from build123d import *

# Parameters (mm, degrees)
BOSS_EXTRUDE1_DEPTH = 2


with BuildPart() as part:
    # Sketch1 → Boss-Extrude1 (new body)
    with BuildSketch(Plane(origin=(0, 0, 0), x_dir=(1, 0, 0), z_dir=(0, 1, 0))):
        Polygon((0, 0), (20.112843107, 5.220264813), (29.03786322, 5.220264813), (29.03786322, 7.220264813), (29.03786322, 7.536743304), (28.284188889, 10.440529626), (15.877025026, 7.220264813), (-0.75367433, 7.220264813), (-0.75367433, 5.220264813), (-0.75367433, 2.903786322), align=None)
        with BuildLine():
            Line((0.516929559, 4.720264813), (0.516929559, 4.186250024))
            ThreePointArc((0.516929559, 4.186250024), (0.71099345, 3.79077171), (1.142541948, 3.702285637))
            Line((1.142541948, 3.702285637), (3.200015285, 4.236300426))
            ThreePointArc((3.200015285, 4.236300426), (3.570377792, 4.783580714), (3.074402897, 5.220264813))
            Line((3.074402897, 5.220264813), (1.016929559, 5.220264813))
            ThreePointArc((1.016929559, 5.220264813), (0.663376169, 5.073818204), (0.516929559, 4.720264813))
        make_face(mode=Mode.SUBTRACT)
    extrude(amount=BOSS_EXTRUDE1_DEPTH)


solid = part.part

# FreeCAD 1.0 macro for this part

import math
import FreeCAD as App
import Part
import Sketcher

V = App.Vector
Q = App.Units.Quantity


def add_polygon(sketch, points):
    """Adds a closed chain of lines whose ends are joined by coincident constraints."""
    first, n = sketch.GeometryCount, len(points)
    for a, b in zip(points, points[1:] + points[:1]):
        sketch.addGeometry(Part.LineSegment(App.Vector(*a, 0), App.Vector(*b, 0)), False)
    for i in range(n):
        sketch.addConstraint(Sketcher.Constraint("Coincident", first + i, 2, first + (i + 1) % n, 1))

doc = App.newDocument("Part")
body = doc.addObject("PartDesign::Body", "Body")

sketch1 = doc.addObject("Sketcher::SketchObject", "Sketch")
body.addObject(sketch1)
sketch1.AttachmentSupport = (doc.XZ_Plane, [""])
sketch1.MapMode = "FlatFace"
add_polygon(sketch1, [(0, 0), (20.112843, -5.220265), (29.037863, -5.220265), (29.037863, -7.536743), (28.284189, -10.44053), (15.877025, -7.220265), (-0.753674, -7.220265), (-0.753674, -2.903786)])
sketch1.addGeometry(Part.LineSegment(V(0.51693, -4.18625, 0), V(0.51693, -4.720265, 0)), False)
sketch1.addGeometry(Part.ArcOfCircle(Part.Circle(V(1.01693, -4.720265, 0), V(0, 0, 1), 0.5), math.radians(180), math.radians(270)), False)
sketch1.addGeometry(Part.LineSegment(V(1.01693, -5.220265, 0), V(3.074403, -5.220265, 0)), False)
sketch1.addGeometry(Part.ArcOfCircle(Part.Circle(V(3.074403, -4.720265, 0), V(0, 0, 1), 0.5), math.radians(-90), math.radians(75.45)), False)
sketch1.addGeometry(Part.LineSegment(V(3.200015, -4.2363, 0), V(1.142542, -3.702286, 0)), False)
sketch1.addGeometry(Part.ArcOfCircle(Part.Circle(V(1.01693, -4.18625, 0), V(0, 0, 1), 0.5), math.radians(75.45), math.radians(180)), False)
sketch1.addConstraint([
    Sketcher.Constraint("Tangent", 8, 2, 9, 1),
    Sketcher.Constraint("Tangent", 9, 2, 10, 1),
    Sketcher.Constraint("Tangent", 10, 2, 11, 1),
    Sketcher.Constraint("Tangent", 11, 2, 12, 1),
    Sketcher.Constraint("Tangent", 12, 2, 13, 1),
    Sketcher.Constraint("Tangent", 13, 2, 8, 1),
    Sketcher.Constraint("Horizontal", 1),
    Sketcher.Constraint("Vertical", 2),
    Sketcher.Constraint("Horizontal", 5),
    Sketcher.Constraint("Vertical", 6),
    Sketcher.Constraint("Vertical", 8),
    Sketcher.Constraint("Horizontal", 10),
    Sketcher.Constraint("Coincident", 7, 2, -1, 1),
    Sketcher.Constraint("Equal", 9, 11),
    Sketcher.Constraint("Equal", 11, 13),
    Sketcher.Constraint("Perpendicular", 0, 3),
    Sketcher.Constraint("Perpendicular", 3, 4),
    Sketcher.Constraint("Perpendicular", 4, 7),
    Sketcher.Constraint("Perpendicular", 7, 12),
    Sketcher.Constraint("Horizontal", 1, 2, 9, 2),
    Sketcher.Constraint("Equal", 3, 7),
    Sketcher.Constraint("Radius", 9, Q("0.5 mm")),
    Sketcher.Constraint("Distance", 3, Q("3 mm")),
    Sketcher.Constraint("DistanceY", 4, 2, 0, 2, Q("2 mm")),
    Sketcher.Constraint("Angle", 0, Q("-14.55 deg")),
    Sketcher.Constraint("DistanceX", 5, 2, 5, 1, Q("16.630699 mm")),
    Sketcher.Constraint("DistanceX", 1, 1, 1, 2, Q("8.92502 mm")),
    Sketcher.Constraint("DistanceY", 2, 2, 2, 1, Q("2.316478 mm")),
    Sketcher.Constraint("DistanceY", 12, 2, 6, 2, Q("0.798499 mm")),
    Sketcher.Constraint("DistanceX", -1, 1, 9, 3, Q("1.01693 mm")),
])
pad1 = doc.addObject("PartDesign::Pad", "Pad")
body.addObject(pad1)
pad1.Profile = sketch1
pad1.Length = 2
pad1.Reversed = True

doc.recompute()
